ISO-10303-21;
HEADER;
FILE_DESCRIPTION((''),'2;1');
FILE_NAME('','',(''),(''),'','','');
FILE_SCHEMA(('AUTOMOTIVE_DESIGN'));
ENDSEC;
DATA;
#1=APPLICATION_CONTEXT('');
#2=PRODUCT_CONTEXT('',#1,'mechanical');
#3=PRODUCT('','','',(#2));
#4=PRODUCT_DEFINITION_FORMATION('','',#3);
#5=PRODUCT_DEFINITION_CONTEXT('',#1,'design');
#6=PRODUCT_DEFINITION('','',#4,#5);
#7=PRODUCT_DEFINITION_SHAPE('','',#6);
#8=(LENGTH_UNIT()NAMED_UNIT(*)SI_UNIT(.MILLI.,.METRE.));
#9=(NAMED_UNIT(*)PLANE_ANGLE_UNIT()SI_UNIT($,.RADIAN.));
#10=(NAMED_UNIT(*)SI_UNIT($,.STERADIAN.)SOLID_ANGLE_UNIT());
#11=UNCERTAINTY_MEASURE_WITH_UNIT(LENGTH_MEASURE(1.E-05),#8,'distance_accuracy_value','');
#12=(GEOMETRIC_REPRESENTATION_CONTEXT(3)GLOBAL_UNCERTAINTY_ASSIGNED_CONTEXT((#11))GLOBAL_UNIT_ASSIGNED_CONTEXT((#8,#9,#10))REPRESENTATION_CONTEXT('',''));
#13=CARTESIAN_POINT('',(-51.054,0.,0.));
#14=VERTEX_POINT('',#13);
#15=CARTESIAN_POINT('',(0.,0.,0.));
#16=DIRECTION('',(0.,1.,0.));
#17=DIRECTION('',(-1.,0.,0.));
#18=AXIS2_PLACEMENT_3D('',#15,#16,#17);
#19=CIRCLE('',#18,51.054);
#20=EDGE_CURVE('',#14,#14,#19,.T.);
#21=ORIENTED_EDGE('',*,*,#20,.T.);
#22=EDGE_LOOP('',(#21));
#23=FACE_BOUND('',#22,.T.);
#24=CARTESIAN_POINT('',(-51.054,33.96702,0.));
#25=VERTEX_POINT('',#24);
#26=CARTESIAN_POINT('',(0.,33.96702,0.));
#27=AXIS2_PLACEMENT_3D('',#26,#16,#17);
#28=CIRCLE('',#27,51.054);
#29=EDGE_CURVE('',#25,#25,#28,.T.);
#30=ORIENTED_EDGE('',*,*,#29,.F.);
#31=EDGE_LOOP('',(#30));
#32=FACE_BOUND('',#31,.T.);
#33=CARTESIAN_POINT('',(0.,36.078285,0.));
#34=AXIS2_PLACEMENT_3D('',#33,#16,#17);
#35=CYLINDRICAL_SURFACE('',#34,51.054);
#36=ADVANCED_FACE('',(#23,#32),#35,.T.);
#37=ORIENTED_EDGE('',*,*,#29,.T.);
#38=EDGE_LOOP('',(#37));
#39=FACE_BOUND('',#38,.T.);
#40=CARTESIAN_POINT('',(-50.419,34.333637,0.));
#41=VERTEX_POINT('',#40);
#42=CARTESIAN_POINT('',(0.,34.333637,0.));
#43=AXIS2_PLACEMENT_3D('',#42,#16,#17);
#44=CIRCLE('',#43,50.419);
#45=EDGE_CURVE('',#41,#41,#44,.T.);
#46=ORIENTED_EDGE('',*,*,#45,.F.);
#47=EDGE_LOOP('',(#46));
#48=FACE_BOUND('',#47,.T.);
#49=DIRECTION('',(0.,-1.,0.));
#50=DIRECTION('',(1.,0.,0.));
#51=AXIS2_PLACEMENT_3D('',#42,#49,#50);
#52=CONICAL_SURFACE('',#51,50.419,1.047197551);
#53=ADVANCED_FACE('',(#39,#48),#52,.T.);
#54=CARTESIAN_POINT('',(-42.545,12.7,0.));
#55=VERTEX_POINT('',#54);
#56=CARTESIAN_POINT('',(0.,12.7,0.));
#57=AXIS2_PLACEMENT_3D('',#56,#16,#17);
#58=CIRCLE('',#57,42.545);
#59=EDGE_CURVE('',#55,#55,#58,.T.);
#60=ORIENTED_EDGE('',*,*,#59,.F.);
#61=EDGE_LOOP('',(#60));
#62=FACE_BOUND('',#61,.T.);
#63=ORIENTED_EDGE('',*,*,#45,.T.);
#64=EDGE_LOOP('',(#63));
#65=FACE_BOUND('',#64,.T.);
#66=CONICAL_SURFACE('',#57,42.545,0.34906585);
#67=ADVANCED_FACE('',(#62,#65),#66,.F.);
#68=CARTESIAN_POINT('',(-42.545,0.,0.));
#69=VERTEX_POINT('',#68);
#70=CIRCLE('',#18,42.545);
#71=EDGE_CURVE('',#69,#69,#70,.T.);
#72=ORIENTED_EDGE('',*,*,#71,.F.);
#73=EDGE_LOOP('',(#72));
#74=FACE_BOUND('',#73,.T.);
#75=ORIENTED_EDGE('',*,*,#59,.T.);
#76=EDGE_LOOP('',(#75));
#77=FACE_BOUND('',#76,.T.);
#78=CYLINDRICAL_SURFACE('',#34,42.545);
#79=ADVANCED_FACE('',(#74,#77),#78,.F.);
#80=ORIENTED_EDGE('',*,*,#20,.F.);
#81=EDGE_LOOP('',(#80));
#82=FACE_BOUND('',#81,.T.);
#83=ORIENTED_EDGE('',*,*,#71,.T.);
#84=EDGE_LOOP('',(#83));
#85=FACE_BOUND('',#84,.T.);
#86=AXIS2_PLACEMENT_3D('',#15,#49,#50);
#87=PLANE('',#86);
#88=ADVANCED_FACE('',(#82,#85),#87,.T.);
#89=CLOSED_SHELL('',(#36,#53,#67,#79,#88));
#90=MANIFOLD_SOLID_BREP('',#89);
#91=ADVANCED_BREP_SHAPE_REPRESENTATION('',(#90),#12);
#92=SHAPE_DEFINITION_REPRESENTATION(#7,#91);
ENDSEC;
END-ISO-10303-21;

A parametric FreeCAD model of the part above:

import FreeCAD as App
import Part
import Sketcher
from FreeCAD import Vector
Q = App.Units.Quantity


def add_polygon(sketch, points):
    """Adds a closed chain of lines whose ends are joined by coincident constraints."""
    first, n = sketch.GeometryCount, len(points)
    for a, b in zip(points, points[1:] + points[:1]):
        sketch.addGeometry(Part.LineSegment(App.Vector(*a, 0), App.Vector(*b, 0)), False)
    for i in range(n):
        sketch.addConstraint(Sketcher.Constraint("Coincident", first + i, 2, first + (i + 1) % n, 1))

doc = App.newDocument("Part")
body = doc.addObject("PartDesign::Body", "Body")

sketch1 = doc.addObject("Sketcher::SketchObject", "Sketch")
body.addObject(sketch1)
sketch1.AttachmentSupport = (doc.XY_Plane, [""])
sketch1.MapMode = "FlatFace"
add_polygon(sketch1, [(50.4, 34.3), (42.5, 12.7), (42.5, 0), (51.1, 0), (51.1, 34)])
sketch1.addConstraint(Sketcher.Constraint("Vertical", 1))
sketch1.addConstraint(Sketcher.Constraint("Horizontal", 2))
sketch1.addConstraint(Sketcher.Constraint("Vertical", 3))
sketch1.addConstraint(Sketcher.Constraint("PointOnObject", 1, 2, -1))
sketch1.addConstraint(Sketcher.Constraint("DistanceY", 1, 2, 1, 1, Q("0.5 in")))
sketch1.addConstraint(Sketcher.Constraint("Angle", 0, Q("-110 deg")))
sketch1.addConstraint(Sketcher.Constraint("Angle", 4, Q("150 deg")))
sketch1.addConstraint(Sketcher.Constraint("DistanceX", 2, 1, 2, 2, Q("0.335 in")))
sketch1.addConstraint(Sketcher.Constraint("DistanceX", -1, 1, 2, 2, Q("2.01 in")))
sketch1.addConstraint(Sketcher.Constraint("DistanceX", 0, 2, 4, 2, Q("0.31 in")))
revolution = doc.addObject("PartDesign::Revolution", "Revolution")
body.addObject(revolution)
revolution.Profile = sketch1
revolution.ReferenceAxis = (sketch1, ["V_Axis"])
revolution.Angle = 360

doc.recompute()
